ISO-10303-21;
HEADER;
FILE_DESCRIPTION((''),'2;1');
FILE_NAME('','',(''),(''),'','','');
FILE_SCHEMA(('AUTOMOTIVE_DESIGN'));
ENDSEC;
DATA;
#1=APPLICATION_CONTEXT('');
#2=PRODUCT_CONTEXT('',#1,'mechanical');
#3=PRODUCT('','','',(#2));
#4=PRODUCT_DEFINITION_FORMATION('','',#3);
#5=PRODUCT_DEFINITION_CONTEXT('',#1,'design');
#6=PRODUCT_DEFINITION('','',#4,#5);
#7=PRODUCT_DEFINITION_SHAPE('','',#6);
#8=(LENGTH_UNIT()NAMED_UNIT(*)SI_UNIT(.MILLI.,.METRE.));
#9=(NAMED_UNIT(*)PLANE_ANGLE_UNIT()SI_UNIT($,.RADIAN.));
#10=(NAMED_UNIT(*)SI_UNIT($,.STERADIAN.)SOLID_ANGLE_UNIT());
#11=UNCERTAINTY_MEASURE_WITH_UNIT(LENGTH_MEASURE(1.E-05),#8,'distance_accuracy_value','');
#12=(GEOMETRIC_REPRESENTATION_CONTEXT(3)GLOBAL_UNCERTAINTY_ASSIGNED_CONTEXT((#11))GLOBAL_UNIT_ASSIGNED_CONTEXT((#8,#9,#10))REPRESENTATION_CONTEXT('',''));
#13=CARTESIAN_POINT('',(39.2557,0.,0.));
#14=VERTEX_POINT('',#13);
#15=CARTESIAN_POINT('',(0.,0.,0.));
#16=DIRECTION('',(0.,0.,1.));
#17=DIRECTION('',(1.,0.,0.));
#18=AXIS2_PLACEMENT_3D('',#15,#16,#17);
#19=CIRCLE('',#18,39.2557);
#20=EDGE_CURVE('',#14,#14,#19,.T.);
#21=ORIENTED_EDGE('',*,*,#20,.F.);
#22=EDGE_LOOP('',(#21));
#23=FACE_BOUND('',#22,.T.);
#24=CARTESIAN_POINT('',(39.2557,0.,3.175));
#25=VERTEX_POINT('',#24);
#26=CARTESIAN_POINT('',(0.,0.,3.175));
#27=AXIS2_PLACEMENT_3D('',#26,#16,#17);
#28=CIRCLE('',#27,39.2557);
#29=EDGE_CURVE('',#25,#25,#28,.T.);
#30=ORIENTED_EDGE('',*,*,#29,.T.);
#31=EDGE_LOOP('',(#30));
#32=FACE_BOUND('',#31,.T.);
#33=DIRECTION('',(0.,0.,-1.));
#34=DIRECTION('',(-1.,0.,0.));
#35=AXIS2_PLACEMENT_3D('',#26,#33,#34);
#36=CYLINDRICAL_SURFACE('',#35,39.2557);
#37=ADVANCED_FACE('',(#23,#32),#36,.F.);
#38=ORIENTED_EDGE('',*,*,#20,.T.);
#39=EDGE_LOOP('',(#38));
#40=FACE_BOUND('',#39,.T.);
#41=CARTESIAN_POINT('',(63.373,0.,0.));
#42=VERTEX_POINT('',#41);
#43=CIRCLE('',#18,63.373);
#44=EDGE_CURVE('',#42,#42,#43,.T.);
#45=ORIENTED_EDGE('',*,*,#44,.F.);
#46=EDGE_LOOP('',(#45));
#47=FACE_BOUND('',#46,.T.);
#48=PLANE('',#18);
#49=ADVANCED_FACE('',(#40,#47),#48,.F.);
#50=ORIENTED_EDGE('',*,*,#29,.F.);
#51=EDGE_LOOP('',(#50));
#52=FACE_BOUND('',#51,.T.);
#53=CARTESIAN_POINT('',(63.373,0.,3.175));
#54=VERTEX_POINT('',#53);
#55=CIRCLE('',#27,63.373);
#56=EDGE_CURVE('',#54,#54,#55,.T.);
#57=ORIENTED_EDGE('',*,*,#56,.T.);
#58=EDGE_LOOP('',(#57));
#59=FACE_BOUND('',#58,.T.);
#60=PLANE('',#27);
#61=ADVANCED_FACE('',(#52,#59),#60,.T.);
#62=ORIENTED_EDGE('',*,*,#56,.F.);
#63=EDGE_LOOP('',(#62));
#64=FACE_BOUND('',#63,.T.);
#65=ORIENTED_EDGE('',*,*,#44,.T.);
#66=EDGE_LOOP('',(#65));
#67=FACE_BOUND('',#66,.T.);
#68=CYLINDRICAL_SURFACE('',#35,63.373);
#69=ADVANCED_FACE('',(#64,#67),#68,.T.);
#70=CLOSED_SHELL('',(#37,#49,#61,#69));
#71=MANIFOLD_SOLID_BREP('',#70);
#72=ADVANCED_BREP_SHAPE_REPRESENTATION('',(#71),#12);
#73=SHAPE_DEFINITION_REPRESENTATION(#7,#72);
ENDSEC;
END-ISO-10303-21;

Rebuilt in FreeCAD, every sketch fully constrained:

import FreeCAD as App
import Part
import Sketcher

V = App.Vector
Q = App.Units.Quantity

doc = App.newDocument("Part")
body = doc.addObject("PartDesign::Body", "Body")

sketch1 = body.newObject("Sketcher::SketchObject", "Sketch")
sketch1.AttachmentSupport = (doc.getObject("XY_Plane"), [""])
sketch1.MapMode = "FlatFace"
sketch1.addGeometry(Part.Circle(V(0, 0, 0), V(0, 0, 1), 63.373), False)
sketch1.addGeometry(Part.Circle(V(0, 0, 0), V(0, 0, 1), 39.2557), False)
sketch1.addConstraint(Sketcher.Constraint("Coincident", 0, 3, -1, 1))
sketch1.addConstraint(Sketcher.Constraint("Coincident", 1, 3, -1, 1))
sketch1.addConstraint(Sketcher.Constraint("Diameter", 0, Q("4.99 in")))
sketch1.addConstraint(Sketcher.Constraint("Diameter", 1, Q("3.091 in")))
pad1 = body.newObject("PartDesign::Pad", "Pad")
pad1.Profile = sketch1
pad1.Length = Q("0.125 in")

doc.recompute()
